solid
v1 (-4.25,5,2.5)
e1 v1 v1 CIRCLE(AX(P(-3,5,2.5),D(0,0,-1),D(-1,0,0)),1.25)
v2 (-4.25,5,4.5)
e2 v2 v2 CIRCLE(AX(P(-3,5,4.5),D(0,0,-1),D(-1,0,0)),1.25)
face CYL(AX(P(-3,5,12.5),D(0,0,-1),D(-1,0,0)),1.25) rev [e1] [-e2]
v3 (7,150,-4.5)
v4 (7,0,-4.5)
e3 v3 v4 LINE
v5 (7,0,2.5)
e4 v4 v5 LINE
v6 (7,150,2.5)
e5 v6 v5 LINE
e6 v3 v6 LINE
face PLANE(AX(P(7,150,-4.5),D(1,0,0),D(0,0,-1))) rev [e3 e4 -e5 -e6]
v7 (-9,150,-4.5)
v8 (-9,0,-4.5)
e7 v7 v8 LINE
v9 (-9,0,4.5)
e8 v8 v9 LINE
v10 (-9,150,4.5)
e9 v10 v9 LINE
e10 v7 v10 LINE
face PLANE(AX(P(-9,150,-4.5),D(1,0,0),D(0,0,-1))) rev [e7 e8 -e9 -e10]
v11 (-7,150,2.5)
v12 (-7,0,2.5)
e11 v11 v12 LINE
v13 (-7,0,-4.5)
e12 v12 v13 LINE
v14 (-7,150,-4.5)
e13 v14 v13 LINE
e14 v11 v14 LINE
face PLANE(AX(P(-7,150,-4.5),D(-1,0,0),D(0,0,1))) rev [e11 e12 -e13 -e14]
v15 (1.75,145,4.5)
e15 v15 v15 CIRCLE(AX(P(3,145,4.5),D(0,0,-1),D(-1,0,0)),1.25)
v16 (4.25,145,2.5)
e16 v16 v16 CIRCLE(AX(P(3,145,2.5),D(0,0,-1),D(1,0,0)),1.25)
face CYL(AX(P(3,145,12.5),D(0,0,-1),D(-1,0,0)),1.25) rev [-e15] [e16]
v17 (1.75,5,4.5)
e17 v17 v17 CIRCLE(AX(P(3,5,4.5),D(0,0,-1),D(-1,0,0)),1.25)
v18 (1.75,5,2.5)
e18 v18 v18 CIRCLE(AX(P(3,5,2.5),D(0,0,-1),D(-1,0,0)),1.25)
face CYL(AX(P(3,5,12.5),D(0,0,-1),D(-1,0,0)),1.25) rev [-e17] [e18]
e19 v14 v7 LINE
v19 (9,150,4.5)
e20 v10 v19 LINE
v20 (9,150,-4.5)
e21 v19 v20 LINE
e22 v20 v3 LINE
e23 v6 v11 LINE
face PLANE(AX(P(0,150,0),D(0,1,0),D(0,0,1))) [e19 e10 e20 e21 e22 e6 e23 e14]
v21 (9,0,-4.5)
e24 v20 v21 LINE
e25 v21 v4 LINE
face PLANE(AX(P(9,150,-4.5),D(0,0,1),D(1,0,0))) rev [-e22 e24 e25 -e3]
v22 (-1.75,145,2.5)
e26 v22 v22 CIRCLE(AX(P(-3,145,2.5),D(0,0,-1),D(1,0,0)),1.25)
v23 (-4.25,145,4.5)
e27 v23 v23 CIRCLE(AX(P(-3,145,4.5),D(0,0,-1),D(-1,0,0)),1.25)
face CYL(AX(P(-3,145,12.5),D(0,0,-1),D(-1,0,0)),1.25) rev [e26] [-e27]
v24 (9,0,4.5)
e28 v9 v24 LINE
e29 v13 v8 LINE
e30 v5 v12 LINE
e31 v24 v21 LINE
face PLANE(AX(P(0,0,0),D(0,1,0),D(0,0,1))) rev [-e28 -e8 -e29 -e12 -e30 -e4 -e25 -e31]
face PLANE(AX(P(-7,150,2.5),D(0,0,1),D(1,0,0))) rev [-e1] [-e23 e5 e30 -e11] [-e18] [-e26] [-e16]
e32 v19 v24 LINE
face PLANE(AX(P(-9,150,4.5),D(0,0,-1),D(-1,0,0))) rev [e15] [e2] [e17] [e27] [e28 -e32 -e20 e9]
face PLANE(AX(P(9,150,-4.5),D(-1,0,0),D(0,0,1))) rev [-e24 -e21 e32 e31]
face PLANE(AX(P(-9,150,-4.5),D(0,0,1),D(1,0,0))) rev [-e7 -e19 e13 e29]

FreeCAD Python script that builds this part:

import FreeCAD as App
import Part
import Sketcher
from FreeCAD import Vector

doc = App.newDocument("Part")
params = doc.addObject("Spreadsheet::Sheet", "Params")
for row, (alias, value) in enumerate([
    ("sketch1_width", "2 mm"),
    ("sketch1_width2", "18 mm"),
    ("sketch1_height", "7 mm"),
    ("sketch1_height2", "9 mm"),
    ("pad1_length", "150 mm"),
    ("sketch2_diameter", "2.5 mm"),
    ("pocket1_length", "10 mm"),
], start=1):
    params.set(f"A{row}", alias)
    params.set(f"B{row}", "=" + value)
    params.setAlias(f"B{row}", alias)

body = doc.addObject("PartDesign::Body", "Body")

# Sketch on XZ plane
sketch1 = body.newObject("Sketcher::SketchObject", "Sketch")
sketch1.AttachmentSupport = (doc.getObject("XZ_Plane"), [""])
sketch1.MapMode = "FlatFace"
sketch1.addGeometry([
    Part.LineSegment(Vector(-7, 2.5, 0), Vector(-7, -4.5, 0)),  # 0
    Part.LineSegment(Vector(-7, -4.5, 0), Vector(-9, -4.5, 0)),  # 1
    Part.LineSegment(Vector(-9, -4.5, 0), Vector(-9, 4.5, 0)),  # 2
    Part.LineSegment(Vector(-9, 4.5, 0), Vector(9, 4.5, 0)),  # 3
    Part.LineSegment(Vector(9, 4.5, 0), Vector(9, -4.5, 0)),  # 4
    Part.LineSegment(Vector(9, -4.5, 0), Vector(7, -4.5, 0)),  # 5
    Part.LineSegment(Vector(7, -4.5, 0), Vector(7, 2.5, 0)),  # 6
    Part.LineSegment(Vector(7, 2.5, 0), Vector(-7, 2.5, 0)),  # 7
], False)
sketch1.addConstraint([
    Sketcher.Constraint("Coincident", 0, 2, 1, 1),
    Sketcher.Constraint("Coincident", 1, 2, 2, 1),
    Sketcher.Constraint("Coincident", 2, 2, 3, 1),
    Sketcher.Constraint("Coincident", 3, 2, 4, 1),
    Sketcher.Constraint("Coincident", 4, 2, 5, 1),
    Sketcher.Constraint("Coincident", 5, 2, 6, 1),
    Sketcher.Constraint("Coincident", 6, 2, 7, 1),
    Sketcher.Constraint("Coincident", 7, 2, 0, 1),
    Sketcher.Constraint("Vertical", 0),
    Sketcher.Constraint("Horizontal", 1),
    Sketcher.Constraint("Vertical", 2),
    Sketcher.Constraint("Horizontal", 3),
    Sketcher.Constraint("Vertical", 4),
    Sketcher.Constraint("Horizontal", 5),
    Sketcher.Constraint("Vertical", 6),
    Sketcher.Constraint("Horizontal", 7),
    Sketcher.Constraint("Symmetric", 1, 2, 3, 2, -1, 1),
    Sketcher.Constraint("Symmetric", 0, 2, 5, 2, -2),
    Sketcher.Constraint("DistanceX", 1, 2, 1, 1, 2.0),
    Sketcher.Constraint("DistanceX", 3, 1, 3, 2, 18.0),
    Sketcher.Constraint("DistanceY", 0, 2, 0, 1, 7.0),
    Sketcher.Constraint("DistanceY", 2, 1, 2, 2, 9.0),
])
sketch1.setExpression("Constraints[18]", "Params.sketch1_width")
sketch1.setExpression("Constraints[19]", "Params.sketch1_width2")
sketch1.setExpression("Constraints[20]", "Params.sketch1_height")
sketch1.setExpression("Constraints[21]", "Params.sketch1_height2")
pad1 = body.newObject("PartDesign::Pad", "Pad")
pad1.Profile = sketch1
pad1.setExpression("Length", "Params.pad1_length")
pad1.Reversed = True

# Sketch on XY plane
sketch2 = body.newObject("Sketcher::SketchObject", "Sketch001")
sketch2.AttachmentSupport = (doc.getObject("XY_Plane"), [""])
sketch2.MapMode = "FlatFace"
sketch2.AttachmentOffset = App.Placement(Vector(0, 0, 2.5), App.Rotation())
sketch2.addGeometry([
    Part.Circle(Vector(3, 5, 0), Vector(0, 0, 1), 1.25),
    Part.Circle(Vector(-3, 5, 0), Vector(0, 0, 1), 1.25),
    Part.Circle(Vector(-3, 145, 0), Vector(0, 0, 1), 1.25),
    Part.Circle(Vector(3, 145, 0), Vector(0, 0, 1), 1.25),
], False)
sketch2.addConstraint([
    Sketcher.Constraint("Equal", 0, 1),
    Sketcher.Constraint("Equal", 1, 2),
    Sketcher.Constraint("Equal", 2, 3),
    Sketcher.Constraint("Symmetric", 0, 3, 1, 3, -2),
    Sketcher.Constraint("Symmetric", 2, 3, 3, 3, -2),
    Sketcher.Constraint("Vertical", 1, 3, 2, 3),
    Sketcher.Constraint("Diameter", 0, 2.5),
    Sketcher.Constraint("DistanceX", -1, 1, 0, 3, 3.0),
    Sketcher.Constraint("DistanceY", -1, 1, 0, 3, 5.0),
    Sketcher.Constraint("DistanceY", -1, 1, 2, 3, 145.0),
])
sketch2.setExpression("Constraints[6]", "Params.sketch2_diameter")
pocket1 = body.newObject("PartDesign::Pocket", "Pocket")
pocket1.Profile = sketch2
pocket1.setExpression("Length", "Params.pocket1_length")
pocket1.Reversed = True

doc.recompute()
